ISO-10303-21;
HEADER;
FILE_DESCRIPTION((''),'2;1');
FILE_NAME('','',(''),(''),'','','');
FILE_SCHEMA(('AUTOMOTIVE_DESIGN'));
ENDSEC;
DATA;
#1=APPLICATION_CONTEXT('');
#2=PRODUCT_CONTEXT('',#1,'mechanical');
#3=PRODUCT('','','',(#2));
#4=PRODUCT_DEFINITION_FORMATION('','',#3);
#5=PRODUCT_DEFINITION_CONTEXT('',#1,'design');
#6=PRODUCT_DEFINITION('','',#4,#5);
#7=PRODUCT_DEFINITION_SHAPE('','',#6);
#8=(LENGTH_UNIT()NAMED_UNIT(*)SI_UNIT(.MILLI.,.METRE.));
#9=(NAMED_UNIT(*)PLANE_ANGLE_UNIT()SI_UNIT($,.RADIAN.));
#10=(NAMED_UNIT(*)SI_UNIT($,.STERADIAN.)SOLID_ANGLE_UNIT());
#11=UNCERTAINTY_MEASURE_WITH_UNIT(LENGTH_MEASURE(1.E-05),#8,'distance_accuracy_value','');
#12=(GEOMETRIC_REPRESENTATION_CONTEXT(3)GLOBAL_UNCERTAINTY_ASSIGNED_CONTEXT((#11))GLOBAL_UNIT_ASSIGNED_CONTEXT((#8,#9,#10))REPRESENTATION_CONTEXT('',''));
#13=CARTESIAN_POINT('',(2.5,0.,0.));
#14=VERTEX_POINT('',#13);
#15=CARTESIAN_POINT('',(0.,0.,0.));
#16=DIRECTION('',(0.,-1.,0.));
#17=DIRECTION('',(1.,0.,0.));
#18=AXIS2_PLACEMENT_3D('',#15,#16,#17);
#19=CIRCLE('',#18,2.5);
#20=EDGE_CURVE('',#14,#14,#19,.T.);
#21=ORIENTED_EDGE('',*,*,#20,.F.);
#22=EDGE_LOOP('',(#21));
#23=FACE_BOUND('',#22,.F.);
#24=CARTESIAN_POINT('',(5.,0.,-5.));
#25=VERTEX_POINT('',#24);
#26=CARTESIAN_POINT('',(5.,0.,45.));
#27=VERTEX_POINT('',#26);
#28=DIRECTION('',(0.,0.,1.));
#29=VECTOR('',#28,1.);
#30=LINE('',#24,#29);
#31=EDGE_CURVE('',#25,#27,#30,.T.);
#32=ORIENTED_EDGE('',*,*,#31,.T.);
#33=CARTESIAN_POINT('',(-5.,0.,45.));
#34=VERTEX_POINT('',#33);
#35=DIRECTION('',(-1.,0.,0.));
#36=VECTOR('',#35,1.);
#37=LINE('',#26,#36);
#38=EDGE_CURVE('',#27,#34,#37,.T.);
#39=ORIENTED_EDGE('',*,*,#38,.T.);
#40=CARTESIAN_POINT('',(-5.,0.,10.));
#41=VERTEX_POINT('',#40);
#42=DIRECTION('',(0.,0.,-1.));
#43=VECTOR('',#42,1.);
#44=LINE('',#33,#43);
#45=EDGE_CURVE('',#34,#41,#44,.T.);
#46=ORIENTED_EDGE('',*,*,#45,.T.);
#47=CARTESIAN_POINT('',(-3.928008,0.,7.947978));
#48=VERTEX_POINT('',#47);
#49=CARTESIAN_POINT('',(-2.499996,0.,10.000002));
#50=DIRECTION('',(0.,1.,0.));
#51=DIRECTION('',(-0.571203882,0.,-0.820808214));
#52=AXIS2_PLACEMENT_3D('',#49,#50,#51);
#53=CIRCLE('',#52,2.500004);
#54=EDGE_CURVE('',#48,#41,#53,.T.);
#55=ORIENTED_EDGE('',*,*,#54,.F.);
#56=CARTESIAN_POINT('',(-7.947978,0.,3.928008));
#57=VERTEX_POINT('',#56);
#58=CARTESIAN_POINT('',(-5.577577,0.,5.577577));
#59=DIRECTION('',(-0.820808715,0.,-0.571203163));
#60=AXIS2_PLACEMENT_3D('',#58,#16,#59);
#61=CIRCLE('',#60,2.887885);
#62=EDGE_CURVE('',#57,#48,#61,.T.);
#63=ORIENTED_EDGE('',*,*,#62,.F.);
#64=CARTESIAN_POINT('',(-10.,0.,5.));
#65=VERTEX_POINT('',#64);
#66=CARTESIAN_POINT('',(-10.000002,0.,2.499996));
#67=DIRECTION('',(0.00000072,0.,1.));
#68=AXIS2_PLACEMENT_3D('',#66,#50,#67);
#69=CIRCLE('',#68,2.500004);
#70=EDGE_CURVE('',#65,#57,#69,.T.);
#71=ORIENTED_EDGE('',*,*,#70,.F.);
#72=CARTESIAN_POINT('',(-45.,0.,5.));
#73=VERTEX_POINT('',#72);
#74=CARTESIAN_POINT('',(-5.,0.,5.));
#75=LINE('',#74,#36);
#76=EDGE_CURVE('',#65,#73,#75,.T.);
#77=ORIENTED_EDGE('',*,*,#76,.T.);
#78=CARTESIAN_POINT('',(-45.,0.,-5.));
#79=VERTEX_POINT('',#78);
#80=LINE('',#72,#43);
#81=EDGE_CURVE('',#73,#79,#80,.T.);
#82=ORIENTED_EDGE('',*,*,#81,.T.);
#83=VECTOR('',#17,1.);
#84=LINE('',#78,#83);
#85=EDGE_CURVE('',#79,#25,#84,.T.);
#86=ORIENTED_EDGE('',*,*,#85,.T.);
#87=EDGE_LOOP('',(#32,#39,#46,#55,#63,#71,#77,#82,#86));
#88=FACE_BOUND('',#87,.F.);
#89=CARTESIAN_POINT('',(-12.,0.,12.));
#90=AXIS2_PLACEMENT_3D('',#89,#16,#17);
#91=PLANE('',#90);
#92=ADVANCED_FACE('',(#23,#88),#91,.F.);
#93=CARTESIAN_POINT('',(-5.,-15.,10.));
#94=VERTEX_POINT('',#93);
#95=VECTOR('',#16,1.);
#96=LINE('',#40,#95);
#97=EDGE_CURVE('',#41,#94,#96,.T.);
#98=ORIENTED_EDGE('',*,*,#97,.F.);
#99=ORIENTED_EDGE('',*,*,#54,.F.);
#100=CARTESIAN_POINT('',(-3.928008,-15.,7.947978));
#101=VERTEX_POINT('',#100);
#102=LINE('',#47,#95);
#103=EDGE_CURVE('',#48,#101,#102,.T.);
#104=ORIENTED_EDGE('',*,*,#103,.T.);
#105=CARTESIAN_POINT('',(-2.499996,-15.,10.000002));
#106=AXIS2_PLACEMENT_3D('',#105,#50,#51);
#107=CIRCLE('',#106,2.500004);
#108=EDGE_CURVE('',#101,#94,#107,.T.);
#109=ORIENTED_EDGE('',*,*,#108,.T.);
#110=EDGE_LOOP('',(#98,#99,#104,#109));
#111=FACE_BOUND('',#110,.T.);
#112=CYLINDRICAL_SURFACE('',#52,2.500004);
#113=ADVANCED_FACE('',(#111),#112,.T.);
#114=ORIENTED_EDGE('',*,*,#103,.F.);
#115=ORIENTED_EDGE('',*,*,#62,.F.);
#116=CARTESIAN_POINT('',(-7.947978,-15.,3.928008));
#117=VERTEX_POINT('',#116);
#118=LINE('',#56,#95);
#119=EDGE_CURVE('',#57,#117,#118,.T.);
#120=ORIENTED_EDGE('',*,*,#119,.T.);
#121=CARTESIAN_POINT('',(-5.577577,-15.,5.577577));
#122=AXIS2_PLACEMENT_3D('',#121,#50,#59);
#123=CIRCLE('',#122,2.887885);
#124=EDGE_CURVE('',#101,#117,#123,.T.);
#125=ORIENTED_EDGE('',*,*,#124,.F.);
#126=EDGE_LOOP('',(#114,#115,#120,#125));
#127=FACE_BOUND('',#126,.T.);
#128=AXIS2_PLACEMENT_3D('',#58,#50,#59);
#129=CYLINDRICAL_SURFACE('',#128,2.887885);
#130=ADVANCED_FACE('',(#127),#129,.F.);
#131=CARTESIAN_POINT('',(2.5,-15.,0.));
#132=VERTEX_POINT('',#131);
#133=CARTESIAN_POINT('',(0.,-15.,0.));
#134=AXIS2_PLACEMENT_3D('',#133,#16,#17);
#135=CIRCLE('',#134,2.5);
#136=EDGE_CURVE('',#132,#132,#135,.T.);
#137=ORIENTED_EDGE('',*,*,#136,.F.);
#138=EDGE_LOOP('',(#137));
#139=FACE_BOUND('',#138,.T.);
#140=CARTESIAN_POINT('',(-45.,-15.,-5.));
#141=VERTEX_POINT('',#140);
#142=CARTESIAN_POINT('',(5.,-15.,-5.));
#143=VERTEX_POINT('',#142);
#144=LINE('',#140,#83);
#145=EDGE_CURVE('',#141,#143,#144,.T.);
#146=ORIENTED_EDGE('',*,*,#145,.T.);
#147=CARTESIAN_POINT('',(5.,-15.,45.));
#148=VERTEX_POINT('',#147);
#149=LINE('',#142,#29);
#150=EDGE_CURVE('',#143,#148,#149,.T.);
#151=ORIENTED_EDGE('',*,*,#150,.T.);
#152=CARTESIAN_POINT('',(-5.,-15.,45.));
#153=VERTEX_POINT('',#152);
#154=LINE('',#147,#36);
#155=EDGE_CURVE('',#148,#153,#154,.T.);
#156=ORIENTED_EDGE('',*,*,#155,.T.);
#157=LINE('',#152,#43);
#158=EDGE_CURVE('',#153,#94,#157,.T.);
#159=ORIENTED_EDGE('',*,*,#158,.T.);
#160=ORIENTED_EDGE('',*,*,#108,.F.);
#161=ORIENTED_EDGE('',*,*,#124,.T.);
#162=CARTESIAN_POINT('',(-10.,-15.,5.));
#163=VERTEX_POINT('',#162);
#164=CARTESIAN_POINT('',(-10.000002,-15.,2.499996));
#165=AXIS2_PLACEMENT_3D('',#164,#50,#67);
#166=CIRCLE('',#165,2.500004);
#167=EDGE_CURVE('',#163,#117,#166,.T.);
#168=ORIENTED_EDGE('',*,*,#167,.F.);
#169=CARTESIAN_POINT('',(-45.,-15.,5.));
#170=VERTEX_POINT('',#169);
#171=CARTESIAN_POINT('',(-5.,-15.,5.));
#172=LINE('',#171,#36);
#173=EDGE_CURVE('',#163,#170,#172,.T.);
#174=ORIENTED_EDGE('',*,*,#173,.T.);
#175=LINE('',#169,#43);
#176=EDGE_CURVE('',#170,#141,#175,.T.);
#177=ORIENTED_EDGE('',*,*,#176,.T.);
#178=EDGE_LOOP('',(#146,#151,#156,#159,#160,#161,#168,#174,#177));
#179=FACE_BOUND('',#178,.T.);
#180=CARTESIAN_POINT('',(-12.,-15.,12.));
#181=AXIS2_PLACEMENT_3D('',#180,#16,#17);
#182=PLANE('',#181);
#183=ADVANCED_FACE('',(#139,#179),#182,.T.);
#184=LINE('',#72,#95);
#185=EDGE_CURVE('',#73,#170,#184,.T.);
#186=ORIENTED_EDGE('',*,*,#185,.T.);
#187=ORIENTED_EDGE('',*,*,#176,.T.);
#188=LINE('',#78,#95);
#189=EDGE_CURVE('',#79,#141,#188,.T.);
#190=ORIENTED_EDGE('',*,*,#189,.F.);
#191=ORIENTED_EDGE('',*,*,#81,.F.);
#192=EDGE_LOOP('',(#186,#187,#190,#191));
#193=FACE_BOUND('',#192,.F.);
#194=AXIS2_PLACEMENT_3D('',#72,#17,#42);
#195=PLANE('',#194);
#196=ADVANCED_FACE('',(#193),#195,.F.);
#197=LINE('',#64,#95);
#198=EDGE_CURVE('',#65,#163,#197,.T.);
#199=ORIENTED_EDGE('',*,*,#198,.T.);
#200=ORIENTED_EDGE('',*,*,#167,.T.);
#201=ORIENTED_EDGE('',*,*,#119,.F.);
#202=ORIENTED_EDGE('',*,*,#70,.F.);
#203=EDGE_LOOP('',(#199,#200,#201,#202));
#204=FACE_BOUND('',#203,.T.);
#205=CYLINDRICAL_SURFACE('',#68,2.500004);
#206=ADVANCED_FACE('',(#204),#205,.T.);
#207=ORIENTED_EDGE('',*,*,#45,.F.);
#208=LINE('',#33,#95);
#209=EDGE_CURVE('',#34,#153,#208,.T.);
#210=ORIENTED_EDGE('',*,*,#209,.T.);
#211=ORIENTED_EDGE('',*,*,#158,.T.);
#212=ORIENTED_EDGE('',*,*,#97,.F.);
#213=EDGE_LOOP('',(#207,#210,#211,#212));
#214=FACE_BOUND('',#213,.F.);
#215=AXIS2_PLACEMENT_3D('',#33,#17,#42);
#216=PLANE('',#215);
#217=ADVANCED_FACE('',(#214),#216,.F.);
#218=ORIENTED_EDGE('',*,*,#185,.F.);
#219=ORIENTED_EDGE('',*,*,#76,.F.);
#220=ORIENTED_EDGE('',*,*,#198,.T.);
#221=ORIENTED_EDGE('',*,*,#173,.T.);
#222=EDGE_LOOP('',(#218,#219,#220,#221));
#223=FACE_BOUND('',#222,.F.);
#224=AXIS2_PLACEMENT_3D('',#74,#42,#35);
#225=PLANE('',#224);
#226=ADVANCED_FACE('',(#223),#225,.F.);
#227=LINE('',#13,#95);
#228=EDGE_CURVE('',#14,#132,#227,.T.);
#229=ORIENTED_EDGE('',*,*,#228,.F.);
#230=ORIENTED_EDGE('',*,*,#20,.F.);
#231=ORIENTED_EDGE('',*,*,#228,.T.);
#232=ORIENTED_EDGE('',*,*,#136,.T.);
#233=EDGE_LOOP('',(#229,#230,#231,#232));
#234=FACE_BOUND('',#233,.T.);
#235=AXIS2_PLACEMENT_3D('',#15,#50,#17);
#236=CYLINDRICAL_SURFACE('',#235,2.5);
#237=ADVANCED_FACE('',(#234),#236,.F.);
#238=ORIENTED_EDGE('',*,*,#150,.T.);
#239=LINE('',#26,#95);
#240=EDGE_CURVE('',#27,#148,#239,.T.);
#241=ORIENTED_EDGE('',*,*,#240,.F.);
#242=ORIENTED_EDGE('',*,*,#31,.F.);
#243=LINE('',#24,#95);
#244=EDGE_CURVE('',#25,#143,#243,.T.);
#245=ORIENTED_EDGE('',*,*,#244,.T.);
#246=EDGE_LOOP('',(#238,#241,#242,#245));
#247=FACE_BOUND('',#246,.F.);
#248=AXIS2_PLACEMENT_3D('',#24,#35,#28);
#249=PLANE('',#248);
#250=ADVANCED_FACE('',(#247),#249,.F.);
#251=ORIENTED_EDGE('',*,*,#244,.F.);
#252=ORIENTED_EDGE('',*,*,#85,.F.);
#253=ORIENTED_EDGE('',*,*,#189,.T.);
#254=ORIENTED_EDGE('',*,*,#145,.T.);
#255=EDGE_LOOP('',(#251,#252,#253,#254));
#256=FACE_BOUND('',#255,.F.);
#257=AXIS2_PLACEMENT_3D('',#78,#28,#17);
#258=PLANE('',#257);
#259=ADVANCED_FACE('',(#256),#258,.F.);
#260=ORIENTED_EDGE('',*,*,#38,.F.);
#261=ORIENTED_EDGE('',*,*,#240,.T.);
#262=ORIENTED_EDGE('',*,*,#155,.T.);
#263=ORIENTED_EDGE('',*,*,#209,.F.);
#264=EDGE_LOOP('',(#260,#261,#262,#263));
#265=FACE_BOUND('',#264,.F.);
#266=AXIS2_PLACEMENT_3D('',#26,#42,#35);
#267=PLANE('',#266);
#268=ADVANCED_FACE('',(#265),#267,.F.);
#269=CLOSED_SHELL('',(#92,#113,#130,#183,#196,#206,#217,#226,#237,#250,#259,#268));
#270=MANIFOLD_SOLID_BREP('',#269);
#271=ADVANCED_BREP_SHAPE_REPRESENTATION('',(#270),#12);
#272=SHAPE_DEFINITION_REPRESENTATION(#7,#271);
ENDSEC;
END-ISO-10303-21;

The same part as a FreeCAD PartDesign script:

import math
import FreeCAD as App
import Part
import Sketcher

V = App.Vector


def edges_at(feature, points):
    """Names of the edges that pass closest to the given points."""
    edges = feature.Shape.Edges
    near = lambda p: min(range(len(edges)), key=lambda i: edges[i].distToShape(Part.Vertex(*p))[0])
    return sorted({f"Edge{near(p) + 1}" for p in points})


def add_polygon(sketch, points):
    """Adds a closed chain of lines whose ends are joined by coincident constraints."""
    first, n = sketch.GeometryCount, len(points)
    for a, b in zip(points, points[1:] + points[:1]):
        sketch.addGeometry(Part.LineSegment(App.Vector(*a, 0), App.Vector(*b, 0)), False)
    for i in range(n):
        sketch.addConstraint(Sketcher.Constraint("Coincident", first + i, 2, first + (i + 1) % n, 1))

doc = App.newDocument("Part")
body = doc.addObject("PartDesign::Body", "Body")

sketch1 = body.newObject("Sketcher::SketchObject", "Sketch")
sketch1.AttachmentSupport = (doc.getObject("XZ_Plane"), [""])
sketch1.MapMode = "FlatFace"
add_polygon(sketch1, [(5, 45), (-5, 45), (-5, 5), (-45, 5), (-45, -5), (5, -5)])
sketch1.addGeometry(Part.Circle(V(0, 0, 0), V(0, 0, 1), 2.5), False)
sketch1.addConstraint([
    Sketcher.Constraint("Horizontal", 0),
    Sketcher.Constraint("Vertical", 1),
    Sketcher.Constraint("Horizontal", 2),
    Sketcher.Constraint("Vertical", 3),
    Sketcher.Constraint("Horizontal", 4),
    Sketcher.Constraint("Vertical", 5),
    Sketcher.Constraint("Coincident", 6, 3, -1, 1),
    Sketcher.Constraint("Symmetric", 1, 2, 4, 2, -1, 1),
    Sketcher.Constraint("Equal", 2, 1),
    Sketcher.Constraint("Equal", 0, 3),
    Sketcher.Constraint("Diameter", 6, 5.0),
    Sketcher.Constraint("DistanceX", 0, 2, 0, 1, 10.0),
    Sketcher.Constraint("DistanceX", 2, 2, 2, 1, 40.0),
])
pad1 = body.newObject("PartDesign::Pad", "Pad")
pad1.Profile = sketch1
pad1.Length = 15
doc.recompute()

fillet = body.newObject("PartDesign::Fillet", "Fillet")
fillet.Base = (pad1, edges_at(pad1, [(-5, -7.5, 5)]))
fillet.Radius = 5

sketch2 = body.newObject("Sketcher::SketchObject", "Sketch001")
sketch2.AttachmentSupport = (doc.getObject("XZ_Plane"), [""])
sketch2.MapMode = "FlatFace"
sketch2.addGeometry([
    Part.ArcOfCircle(Part.Circle(V(-10, 2.5, 0), V(0, 0, 1), 2.5), math.radians(35), math.radians(90)),
    Part.ArcOfCircle(Part.Circle(V(-5.6, 5.6, 0), V(0, 0, 1), 2.9), math.radians(-145), math.radians(55)),
    Part.ArcOfCircle(Part.Circle(V(-2.5, 10, 0), V(0, 0, 1), 2.5), math.radians(-180), math.radians(-125)),
    Part.ArcOfCircle(Part.Circle(V(-10, 10, 0), V(0, 0, 1), 5), math.radians(-90), math.radians(0)),
], False)
sketch2.addConstraint([
    Sketcher.Constraint("Tangent", 0, 1, 1, 1),
    Sketcher.Constraint("Tangent", 1, 2, 2, 2),
    Sketcher.Constraint("Tangent", 2, 1, 3, 2),
    Sketcher.Constraint("Tangent", 3, 1, 0, 2),
    Sketcher.Constraint("Equal", 0, 2),
    Sketcher.Constraint("Horizontal", 3, 3, 2, 1),
    Sketcher.Constraint("Vertical", 0, 3, 3, 1),
    Sketcher.Constraint("Radius", 3, 5.0),
    Sketcher.Constraint("DistanceX", 0, 3, -1, 1, 10.000002),
    Sketcher.Constraint("DistanceY", -1, 1, 2, 3, 10.000002),
    Sketcher.Constraint("Radius", 0, 2.500004),
    Sketcher.Constraint("Radius", 1, 2.887885),
])
pocket1 = body.newObject("PartDesign::Pocket", "Pocket")
pocket1.Profile = sketch2
pocket1.Length = 25
pocket1.Reversed = True

doc.recompute()
